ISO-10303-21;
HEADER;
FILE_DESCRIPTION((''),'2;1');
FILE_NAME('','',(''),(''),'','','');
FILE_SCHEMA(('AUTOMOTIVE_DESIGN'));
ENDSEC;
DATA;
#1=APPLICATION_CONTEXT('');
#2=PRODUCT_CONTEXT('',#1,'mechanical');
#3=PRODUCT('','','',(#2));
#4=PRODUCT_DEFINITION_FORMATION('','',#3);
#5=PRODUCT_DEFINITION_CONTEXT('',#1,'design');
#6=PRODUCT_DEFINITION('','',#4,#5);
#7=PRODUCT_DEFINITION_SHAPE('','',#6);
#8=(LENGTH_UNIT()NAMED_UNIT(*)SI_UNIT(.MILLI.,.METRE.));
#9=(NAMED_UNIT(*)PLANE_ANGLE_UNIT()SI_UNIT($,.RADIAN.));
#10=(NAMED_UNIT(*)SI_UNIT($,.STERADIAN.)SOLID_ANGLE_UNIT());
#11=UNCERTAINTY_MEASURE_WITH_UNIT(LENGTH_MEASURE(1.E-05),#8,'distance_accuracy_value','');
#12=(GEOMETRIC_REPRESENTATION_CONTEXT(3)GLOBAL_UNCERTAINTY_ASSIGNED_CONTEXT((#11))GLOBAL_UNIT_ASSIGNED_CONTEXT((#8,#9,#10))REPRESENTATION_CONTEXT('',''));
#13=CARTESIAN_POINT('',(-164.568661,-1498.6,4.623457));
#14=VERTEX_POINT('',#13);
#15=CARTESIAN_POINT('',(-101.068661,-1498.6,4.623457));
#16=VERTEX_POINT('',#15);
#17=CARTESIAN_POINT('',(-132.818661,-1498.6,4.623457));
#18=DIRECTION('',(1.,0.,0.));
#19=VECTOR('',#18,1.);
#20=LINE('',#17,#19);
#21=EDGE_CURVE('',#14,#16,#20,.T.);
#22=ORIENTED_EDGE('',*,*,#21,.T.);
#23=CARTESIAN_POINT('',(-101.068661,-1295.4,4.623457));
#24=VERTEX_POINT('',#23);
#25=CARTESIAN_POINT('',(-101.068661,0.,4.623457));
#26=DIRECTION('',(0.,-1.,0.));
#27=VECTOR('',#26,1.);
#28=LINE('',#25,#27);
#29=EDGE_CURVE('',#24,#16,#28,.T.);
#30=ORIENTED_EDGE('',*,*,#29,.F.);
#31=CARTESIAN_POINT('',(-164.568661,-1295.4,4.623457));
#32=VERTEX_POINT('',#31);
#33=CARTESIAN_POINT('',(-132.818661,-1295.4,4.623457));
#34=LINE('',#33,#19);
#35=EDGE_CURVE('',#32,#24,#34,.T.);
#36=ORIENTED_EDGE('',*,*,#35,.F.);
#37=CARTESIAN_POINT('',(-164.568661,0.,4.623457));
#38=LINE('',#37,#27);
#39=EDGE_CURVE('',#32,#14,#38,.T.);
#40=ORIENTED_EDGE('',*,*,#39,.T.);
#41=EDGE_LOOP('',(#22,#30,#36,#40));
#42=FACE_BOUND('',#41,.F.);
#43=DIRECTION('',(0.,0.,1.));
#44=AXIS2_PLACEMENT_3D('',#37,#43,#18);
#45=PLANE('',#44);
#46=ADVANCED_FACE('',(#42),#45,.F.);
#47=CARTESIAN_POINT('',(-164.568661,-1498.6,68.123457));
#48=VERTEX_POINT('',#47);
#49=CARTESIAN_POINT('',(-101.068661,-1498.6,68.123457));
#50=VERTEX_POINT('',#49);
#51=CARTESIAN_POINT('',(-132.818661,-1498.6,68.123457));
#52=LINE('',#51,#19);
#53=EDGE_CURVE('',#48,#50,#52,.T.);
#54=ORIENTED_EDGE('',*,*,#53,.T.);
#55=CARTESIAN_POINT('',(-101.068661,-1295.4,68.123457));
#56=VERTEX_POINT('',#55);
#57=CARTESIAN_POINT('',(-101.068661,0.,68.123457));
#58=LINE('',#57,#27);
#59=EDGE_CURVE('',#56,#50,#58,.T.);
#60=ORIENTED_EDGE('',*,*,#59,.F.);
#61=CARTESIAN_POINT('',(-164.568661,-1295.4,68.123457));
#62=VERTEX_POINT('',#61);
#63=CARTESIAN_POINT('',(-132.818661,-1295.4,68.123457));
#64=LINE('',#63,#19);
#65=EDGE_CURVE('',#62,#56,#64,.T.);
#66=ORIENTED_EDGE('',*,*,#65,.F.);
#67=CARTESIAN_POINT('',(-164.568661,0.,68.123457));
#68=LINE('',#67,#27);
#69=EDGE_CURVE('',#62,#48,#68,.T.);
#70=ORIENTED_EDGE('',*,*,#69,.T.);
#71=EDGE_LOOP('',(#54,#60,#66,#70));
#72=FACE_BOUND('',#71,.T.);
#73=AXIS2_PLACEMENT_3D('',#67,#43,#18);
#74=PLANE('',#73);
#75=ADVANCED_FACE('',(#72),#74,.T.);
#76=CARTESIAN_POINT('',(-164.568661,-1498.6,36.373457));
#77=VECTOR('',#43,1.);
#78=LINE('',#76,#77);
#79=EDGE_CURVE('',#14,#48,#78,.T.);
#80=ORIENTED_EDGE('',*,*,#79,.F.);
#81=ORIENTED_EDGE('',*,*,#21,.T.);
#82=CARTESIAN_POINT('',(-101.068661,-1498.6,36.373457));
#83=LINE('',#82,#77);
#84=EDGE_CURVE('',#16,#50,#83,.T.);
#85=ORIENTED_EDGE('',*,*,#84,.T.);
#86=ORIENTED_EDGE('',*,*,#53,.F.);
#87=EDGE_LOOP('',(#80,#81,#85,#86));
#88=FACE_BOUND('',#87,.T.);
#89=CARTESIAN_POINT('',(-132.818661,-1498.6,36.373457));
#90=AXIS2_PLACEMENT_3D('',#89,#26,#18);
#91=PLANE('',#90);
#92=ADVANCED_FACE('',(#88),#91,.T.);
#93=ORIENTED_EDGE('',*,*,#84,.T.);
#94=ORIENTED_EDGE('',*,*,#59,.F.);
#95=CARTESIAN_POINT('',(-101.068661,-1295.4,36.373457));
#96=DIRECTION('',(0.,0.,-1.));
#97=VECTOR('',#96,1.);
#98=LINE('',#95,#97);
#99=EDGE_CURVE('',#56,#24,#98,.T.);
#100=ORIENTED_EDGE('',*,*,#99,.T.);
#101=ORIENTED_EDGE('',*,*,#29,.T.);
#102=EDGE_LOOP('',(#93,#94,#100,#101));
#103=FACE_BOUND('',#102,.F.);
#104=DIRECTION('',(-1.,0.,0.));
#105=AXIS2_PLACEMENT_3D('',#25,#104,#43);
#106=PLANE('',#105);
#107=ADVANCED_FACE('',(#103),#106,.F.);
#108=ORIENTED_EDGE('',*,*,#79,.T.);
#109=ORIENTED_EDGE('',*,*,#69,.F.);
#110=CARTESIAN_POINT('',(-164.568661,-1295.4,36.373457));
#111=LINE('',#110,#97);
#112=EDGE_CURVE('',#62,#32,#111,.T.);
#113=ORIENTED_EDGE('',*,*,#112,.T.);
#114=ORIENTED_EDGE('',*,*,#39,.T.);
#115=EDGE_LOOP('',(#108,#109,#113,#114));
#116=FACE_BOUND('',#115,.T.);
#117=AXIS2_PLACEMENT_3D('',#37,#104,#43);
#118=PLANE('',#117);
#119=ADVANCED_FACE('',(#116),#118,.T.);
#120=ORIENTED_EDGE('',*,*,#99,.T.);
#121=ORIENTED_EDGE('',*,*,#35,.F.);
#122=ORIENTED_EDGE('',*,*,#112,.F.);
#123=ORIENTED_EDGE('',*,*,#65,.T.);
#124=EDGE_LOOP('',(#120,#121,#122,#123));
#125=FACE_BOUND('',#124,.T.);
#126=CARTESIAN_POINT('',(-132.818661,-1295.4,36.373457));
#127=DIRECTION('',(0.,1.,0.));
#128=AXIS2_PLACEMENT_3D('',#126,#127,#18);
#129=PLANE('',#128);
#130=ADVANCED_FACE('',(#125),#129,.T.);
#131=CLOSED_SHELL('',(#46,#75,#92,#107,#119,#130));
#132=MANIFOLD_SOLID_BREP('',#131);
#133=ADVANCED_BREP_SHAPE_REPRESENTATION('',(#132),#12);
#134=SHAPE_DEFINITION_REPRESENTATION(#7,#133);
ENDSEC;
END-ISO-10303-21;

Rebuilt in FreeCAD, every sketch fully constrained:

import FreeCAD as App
import Part
import Sketcher
Q = App.Units.Quantity


def add_polygon(sketch, points):
    """Adds a closed chain of lines whose ends are joined by coincident constraints."""
    first, n = sketch.GeometryCount, len(points)
    for a, b in zip(points, points[1:] + points[:1]):
        sketch.addGeometry(Part.LineSegment(App.Vector(*a, 0), App.Vector(*b, 0)), False)
    for i in range(n):
        sketch.addConstraint(Sketcher.Constraint("Coincident", first + i, 2, first + (i + 1) % n, 1))

doc = App.newDocument("Part")
body = doc.addObject("PartDesign::Body", "Body")

# Sketch on XZ plane
sketch1 = body.newObject("Sketcher::SketchObject", "Sketch")
sketch1.AttachmentSupport = (doc.getObject("XZ_Plane"), [""])
sketch1.MapMode = "FlatFace"
add_polygon(sketch1, [(-164.568661, 68.123457), (-164.568661, 4.623457), (-101.068661, 4.623457), (-101.068661, 68.123457)])  # lines 0-3
sketch1.addConstraint([
    Sketcher.Constraint("Vertical", 0),
    Sketcher.Constraint("Horizontal", 1),
    Sketcher.Constraint("Vertical", 2),
    Sketcher.Constraint("Horizontal", 3),
    Sketcher.Constraint("Equal", 3, 0),
    Sketcher.Constraint("DistanceX", 1, 1, 1, 2, Q("2.5 in")),
    Sketcher.Constraint("DistanceX", 0, 2, -1, 1, Q("164.568661 mm")),
    Sketcher.Constraint("DistanceY", -1, 1, 0, 2, Q("4.623457 mm")),
])
pad1 = body.newObject("PartDesign::Pad", "Pad")
pad1.Profile = sketch1
pad1.Length = Q("59 in")

# Sketch on XZ plane
sketch2 = body.newObject("Sketcher::SketchObject", "Sketch001")
sketch2.AttachmentSupport = (doc.getObject("XZ_Plane"), [""])
sketch2.MapMode = "FlatFace"
add_polygon(sketch2, [(-164.568661, 4.623457), (-164.568661, 68.123457), (-101.068661, 68.123457), (-101.068661, 4.623457)])  # lines 0-3
sketch2.addConstraint([
    Sketcher.Constraint("Vertical", 0),
    Sketcher.Constraint("Horizontal", 1),
    Sketcher.Constraint("Vertical", 2),
    Sketcher.Constraint("Horizontal", 3),
    Sketcher.Constraint("Equal", 3, 0),
    Sketcher.Constraint("DistanceX", 1, 1, 1, 2, Q("2.5 in")),
    Sketcher.Constraint("DistanceX", 0, 2, -1, 1, Q("164.568661 mm")),
    Sketcher.Constraint("DistanceY", -1, 1, 0, 2, Q("68.123457 mm")),
])
pocket1 = body.newObject("PartDesign::Pocket", "Pocket")
pocket1.Profile = sketch2
pocket1.Length = Q("43 in")
pocket1.Reversed = True

# Sketch on XZ plane
sketch3 = body.newObject("Sketcher::SketchObject", "Sketch002")
sketch3.AttachmentSupport = (doc.getObject("XZ_Plane"), [""])
sketch3.MapMode = "FlatFace"
sketch3.AttachmentOffset = App.Placement(App.Vector(0, 0, 43 * 25.4), App.Rotation())
add_polygon(sketch3, [(-164.568661, 4.623457), (-164.568661, 68.123457), (-101.068661, 68.123457), (-101.068661, 4.623457)])  # lines 0-3
sketch3.addConstraint([
    Sketcher.Constraint("Vertical", 0),
    Sketcher.Constraint("Horizontal", 1),
    Sketcher.Constraint("Vertical", 2),
    Sketcher.Constraint("Horizontal", 3),
    Sketcher.Constraint("Equal", 3, 0),
    Sketcher.Constraint("DistanceX", 1, 1, 1, 2, Q("2.5 in")),
    Sketcher.Constraint("DistanceX", 0, 2, -1, 1, Q("164.568661 mm")),
    Sketcher.Constraint("DistanceY", -1, 1, 0, 2, Q("68.123457 mm")),
])
pocket2 = body.newObject("PartDesign::Pocket", "Pocket001")
pocket2.Profile = sketch3
pocket2.Length = Q("8 in")
pocket2.Reversed = True

doc.recompute()
